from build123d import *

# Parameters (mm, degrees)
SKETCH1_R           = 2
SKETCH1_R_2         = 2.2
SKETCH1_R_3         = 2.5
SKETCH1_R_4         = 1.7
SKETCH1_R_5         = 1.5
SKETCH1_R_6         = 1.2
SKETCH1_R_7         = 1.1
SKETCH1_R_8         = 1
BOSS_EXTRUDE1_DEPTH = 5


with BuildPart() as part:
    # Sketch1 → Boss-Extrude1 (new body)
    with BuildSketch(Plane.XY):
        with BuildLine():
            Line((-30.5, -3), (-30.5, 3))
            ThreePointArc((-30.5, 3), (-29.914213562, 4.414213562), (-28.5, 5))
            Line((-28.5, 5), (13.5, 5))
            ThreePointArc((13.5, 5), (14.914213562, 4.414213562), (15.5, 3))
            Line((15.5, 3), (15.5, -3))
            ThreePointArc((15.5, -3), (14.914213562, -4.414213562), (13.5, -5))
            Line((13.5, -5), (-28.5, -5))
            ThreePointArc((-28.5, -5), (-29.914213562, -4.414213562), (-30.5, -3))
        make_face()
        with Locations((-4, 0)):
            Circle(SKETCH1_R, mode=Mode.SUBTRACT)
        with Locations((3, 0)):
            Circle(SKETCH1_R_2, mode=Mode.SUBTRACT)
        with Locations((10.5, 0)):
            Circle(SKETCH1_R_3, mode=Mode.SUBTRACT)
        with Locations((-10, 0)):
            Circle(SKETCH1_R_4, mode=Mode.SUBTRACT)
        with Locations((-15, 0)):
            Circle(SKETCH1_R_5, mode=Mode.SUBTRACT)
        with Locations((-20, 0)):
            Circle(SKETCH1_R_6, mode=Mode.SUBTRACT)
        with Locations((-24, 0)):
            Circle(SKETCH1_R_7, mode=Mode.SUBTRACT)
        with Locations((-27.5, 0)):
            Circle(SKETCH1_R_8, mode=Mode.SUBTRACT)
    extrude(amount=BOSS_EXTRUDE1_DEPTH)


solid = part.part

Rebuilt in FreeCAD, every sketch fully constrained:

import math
import FreeCAD as App
import Part
import Sketcher
Q = App.Units.Quantity

doc = App.newDocument("Part")
body = doc.addObject("PartDesign::Body", "Body")

# Sketch on XY plane
sketch1 = body.newObject("Sketcher::SketchObject", "Sketch")
sketch1.AttachmentSupport = (doc.getObject("XY_Plane"), [""])
sketch1.MapMode = "FlatFace"
sketch1.addGeometry([
    Part.LineSegment(App.Vector(-30.5, 3, 0), App.Vector(-30.5, -3, 0)),  # 0
    Part.ArcOfCircle(Part.Circle(App.Vector(-28.5, -3, 0), App.Vector(0, 0, 1), 2), math.radians(-180), math.radians(-90)),  # 1
    Part.LineSegment(App.Vector(-28.5, -5, 0), App.Vector(13.5, -5, 0)),  # 2
    Part.ArcOfCircle(Part.Circle(App.Vector(13.5, -3, 0), App.Vector(0, 0, 1), 2), math.radians(-90), math.radians(0)),  # 3
    Part.LineSegment(App.Vector(15.5, -3, 0), App.Vector(15.5, 3, 0)),  # 4
    Part.ArcOfCircle(Part.Circle(App.Vector(13.5, 3, 0), App.Vector(0, 0, 1), 2), math.radians(0), math.radians(90)),  # 5
    Part.LineSegment(App.Vector(13.5, 5, 0), App.Vector(-28.5, 5, 0)),  # 6
    Part.ArcOfCircle(Part.Circle(App.Vector(-28.5, 3, 0), App.Vector(0, 0, 1), 2), math.radians(90), math.radians(180)),  # 7
    Part.Circle(App.Vector(10.5, 0, 0), App.Vector(0, 0, 1), 2.5),  # 8
    Part.Circle(App.Vector(3, 0, 0), App.Vector(0, 0, 1), 2.2),  # 9
    Part.Circle(App.Vector(-4, 0, 0), App.Vector(0, 0, 1), 2),  # 10
    Part.Circle(App.Vector(-10, 0, 0), App.Vector(0, 0, 1), 1.7),  # 11
    Part.Circle(App.Vector(-15, 0, 0), App.Vector(0, 0, 1), 1.5),  # 12
    Part.Circle(App.Vector(-20, 0, 0), App.Vector(0, 0, 1), 1.2),  # 13
    Part.Circle(App.Vector(-24, 0, 0), App.Vector(0, 0, 1), 1.1),  # 14
    Part.Circle(App.Vector(-27.5, 0, 0), App.Vector(0, 0, 1), 1),  # 15
], False)
sketch1.addConstraint([
    Sketcher.Constraint("Tangent", 0, 2, 1, 1),
    Sketcher.Constraint("Tangent", 1, 2, 2, 1),
    Sketcher.Constraint("Tangent", 2, 2, 3, 1),
    Sketcher.Constraint("Tangent", 3, 2, 4, 1),
    Sketcher.Constraint("Tangent", 4, 2, 5, 1),
    Sketcher.Constraint("Tangent", 5, 2, 6, 1),
    Sketcher.Constraint("Tangent", 6, 2, 7, 1),
    Sketcher.Constraint("Tangent", 7, 2, 0, 1),
    Sketcher.Constraint("Vertical", 0),
    Sketcher.Constraint("Horizontal", 2),
    Sketcher.Constraint("Vertical", 4),
    Sketcher.Constraint("Horizontal", 6),
    Sketcher.Constraint("Equal", 1, 3),
    Sketcher.Constraint("Equal", 3, 5),
    Sketcher.Constraint("Equal", 5, 7),
    Sketcher.Constraint("Equal", 7, 10),
    Sketcher.Constraint("PointOnObject", 8, 3, -1),
    Sketcher.Constraint("PointOnObject", 9, 3, -1),
    Sketcher.Constraint("PointOnObject", 10, 3, -1),
    Sketcher.Constraint("PointOnObject", 11, 3, -1),
    Sketcher.Constraint("PointOnObject", 12, 3, -1),
    Sketcher.Constraint("PointOnObject", 13, 3, -1),
    Sketcher.Constraint("PointOnObject", 14, 3, -1),
    Sketcher.Constraint("PointOnObject", 15, 3, -1),
    Sketcher.Constraint("Diameter", 8, Q("5 mm")),
    Sketcher.Constraint("Diameter", 10, Q("4 mm")),
    Sketcher.Constraint("Diameter", 12, Q("3 mm")),
    Sketcher.Constraint("Diameter", 15, Q("2 mm")),
    Sketcher.Constraint("Diameter", 9, Q("4.4 mm")),
    Sketcher.Constraint("Diameter", 11, Q("3.4 mm")),
    Sketcher.Constraint("Diameter", 13, Q("2.4 mm")),
    Sketcher.Constraint("Diameter", 14, Q("2.2 mm")),
    Sketcher.Constraint("DistanceX", 2, 1, 2, 2, Q("42 mm")),
    Sketcher.Constraint("DistanceY", 0, 2, 0, 1, Q("6 mm")),
    Sketcher.Constraint("DistanceY", 1, 3, -1, 1, Q("3 mm")),
    Sketcher.Constraint("DistanceX", -1, 1, 9, 3, Q("3 mm")),
    Sketcher.Constraint("DistanceX", 10, 3, -1, 1, Q("4 mm")),
    Sketcher.Constraint("DistanceX", 11, 3, -1, 1, Q("10 mm")),
    Sketcher.Constraint("DistanceX", 12, 3, -1, 1, Q("15 mm")),
    Sketcher.Constraint("DistanceX", 13, 3, -1, 1, Q("20 mm")),
    Sketcher.Constraint("DistanceX", 14, 3, -1, 1, Q("24 mm")),
    Sketcher.Constraint("DistanceX", 8, 3, 3, 3, Q("3 mm")),
    Sketcher.Constraint("DistanceX", 1, 3, 15, 3, Q("1 mm")),
    Sketcher.Constraint("DistanceX", 1, 3, -1, 1, Q("28.5 mm")),
])
pad1 = body.newObject("PartDesign::Pad", "Pad")
pad1.Profile = sketch1
pad1.Length = 5

doc.recompute()
